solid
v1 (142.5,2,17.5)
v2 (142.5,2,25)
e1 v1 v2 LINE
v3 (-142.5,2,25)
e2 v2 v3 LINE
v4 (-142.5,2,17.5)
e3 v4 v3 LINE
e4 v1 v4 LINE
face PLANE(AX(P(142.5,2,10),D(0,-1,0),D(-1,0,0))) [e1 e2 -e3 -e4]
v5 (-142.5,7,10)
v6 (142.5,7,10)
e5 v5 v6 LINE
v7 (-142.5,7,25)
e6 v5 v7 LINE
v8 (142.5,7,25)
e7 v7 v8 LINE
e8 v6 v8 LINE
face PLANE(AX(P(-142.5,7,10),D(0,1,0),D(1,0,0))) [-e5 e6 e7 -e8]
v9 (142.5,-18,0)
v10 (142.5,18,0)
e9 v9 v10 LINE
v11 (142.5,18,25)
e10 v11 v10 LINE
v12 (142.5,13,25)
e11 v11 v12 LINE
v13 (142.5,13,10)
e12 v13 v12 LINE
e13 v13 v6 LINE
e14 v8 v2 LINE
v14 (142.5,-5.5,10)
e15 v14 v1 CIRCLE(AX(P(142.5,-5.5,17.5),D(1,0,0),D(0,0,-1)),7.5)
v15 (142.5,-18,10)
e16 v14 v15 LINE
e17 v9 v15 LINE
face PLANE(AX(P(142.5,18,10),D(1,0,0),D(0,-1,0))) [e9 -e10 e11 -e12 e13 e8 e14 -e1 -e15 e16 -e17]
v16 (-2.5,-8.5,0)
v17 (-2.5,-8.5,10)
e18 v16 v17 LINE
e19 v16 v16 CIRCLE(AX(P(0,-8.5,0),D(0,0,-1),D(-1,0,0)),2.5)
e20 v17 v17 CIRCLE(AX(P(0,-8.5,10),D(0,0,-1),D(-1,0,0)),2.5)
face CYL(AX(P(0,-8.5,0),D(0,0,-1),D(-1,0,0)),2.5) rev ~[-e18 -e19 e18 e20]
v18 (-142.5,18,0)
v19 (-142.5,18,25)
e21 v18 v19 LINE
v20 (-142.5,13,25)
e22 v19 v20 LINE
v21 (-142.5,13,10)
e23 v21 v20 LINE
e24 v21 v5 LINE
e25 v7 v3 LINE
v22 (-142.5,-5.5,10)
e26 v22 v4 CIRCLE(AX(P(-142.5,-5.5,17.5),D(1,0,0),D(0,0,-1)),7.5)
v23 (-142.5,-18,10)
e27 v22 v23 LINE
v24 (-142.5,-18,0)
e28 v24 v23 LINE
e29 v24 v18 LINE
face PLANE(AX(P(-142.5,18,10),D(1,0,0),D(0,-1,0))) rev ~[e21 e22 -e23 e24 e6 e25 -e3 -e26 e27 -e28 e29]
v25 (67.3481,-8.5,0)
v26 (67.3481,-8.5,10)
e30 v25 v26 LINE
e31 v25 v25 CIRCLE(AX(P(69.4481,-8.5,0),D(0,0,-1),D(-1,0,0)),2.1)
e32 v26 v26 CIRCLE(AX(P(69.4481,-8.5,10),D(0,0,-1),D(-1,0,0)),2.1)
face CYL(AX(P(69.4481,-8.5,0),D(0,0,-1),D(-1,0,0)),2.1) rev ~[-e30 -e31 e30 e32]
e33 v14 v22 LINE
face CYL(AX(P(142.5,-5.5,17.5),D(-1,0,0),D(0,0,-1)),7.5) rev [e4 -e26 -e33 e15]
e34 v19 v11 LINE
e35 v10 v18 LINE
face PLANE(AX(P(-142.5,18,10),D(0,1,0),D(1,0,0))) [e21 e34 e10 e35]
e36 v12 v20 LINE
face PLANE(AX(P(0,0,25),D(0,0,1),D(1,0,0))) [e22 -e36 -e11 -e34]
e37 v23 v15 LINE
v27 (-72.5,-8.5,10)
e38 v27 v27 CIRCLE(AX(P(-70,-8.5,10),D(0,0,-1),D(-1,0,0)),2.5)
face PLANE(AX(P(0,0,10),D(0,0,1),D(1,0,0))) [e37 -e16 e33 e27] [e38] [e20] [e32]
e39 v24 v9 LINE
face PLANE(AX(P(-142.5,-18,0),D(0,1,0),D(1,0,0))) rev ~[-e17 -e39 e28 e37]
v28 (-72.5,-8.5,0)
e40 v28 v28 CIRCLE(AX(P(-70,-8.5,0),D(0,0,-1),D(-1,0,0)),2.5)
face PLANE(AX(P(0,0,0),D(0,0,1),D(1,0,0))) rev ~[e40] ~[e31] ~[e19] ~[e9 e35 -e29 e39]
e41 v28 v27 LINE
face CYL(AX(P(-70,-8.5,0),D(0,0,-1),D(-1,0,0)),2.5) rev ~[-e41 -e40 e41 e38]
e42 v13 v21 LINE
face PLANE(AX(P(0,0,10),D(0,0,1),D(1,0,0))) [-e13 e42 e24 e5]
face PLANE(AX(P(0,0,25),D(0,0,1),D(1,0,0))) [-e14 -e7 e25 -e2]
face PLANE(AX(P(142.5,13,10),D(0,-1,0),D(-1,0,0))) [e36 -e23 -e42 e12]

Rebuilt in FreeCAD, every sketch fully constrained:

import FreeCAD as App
import Part
import Sketcher

V = App.Vector
Q = App.Units.Quantity


def edges_at(feature, points):
    """Names of the edges that pass closest to the given points."""
    edges = feature.Shape.Edges
    near = lambda p: min(range(len(edges)), key=lambda i: edges[i].distToShape(Part.Vertex(*p))[0])
    return sorted({f"Edge{near(p) + 1}" for p in points})

doc = App.newDocument("Part")
body = doc.addObject("PartDesign::Body", "Body")

# Sketch on XY plane
sketch1 = doc.addObject("Sketcher::SketchObject", "Sketch")
body.addObject(sketch1)
sketch1.AttachmentSupport = (doc.XY_Plane, [""])
sketch1.MapMode = "FlatFace"
sketch1.addGeometry(Part.LineSegment(V(142, 18, 0), V(-142, 18, 0)), False)
sketch1.addGeometry(Part.LineSegment(V(-142, 18, 0), V(-142, -18, 0)), False)
sketch1.addGeometry(Part.LineSegment(V(-142, -18, 0), V(142, -18, 0)), False)
sketch1.addGeometry(Part.LineSegment(V(142, -18, 0), V(142, 18, 0)), False)
sketch1.addConstraint(Sketcher.Constraint("Coincident", 0, 2, 1, 1))
sketch1.addConstraint(Sketcher.Constraint("Coincident", 1, 2, 2, 1))
sketch1.addConstraint(Sketcher.Constraint("Coincident", 2, 2, 3, 1))
sketch1.addConstraint(Sketcher.Constraint("Coincident", 3, 2, 0, 1))
sketch1.addConstraint(Sketcher.Constraint("Horizontal", 0))
sketch1.addConstraint(Sketcher.Constraint("Vertical", 1))
sketch1.addConstraint(Sketcher.Constraint("Horizontal", 2))
sketch1.addConstraint(Sketcher.Constraint("Vertical", 3))
sketch1.addConstraint(Sketcher.Constraint("Symmetric", 0, 2, 2, 2, -1, 1))
sketch1.addConstraint(Sketcher.Constraint("DistanceX", 0, 2, 0, 1, Q("285 mm")))
sketch1.addConstraint(Sketcher.Constraint("DistanceY", 1, 2, 1, 1, Q("36 mm")))
pad1 = doc.addObject("PartDesign::Pad", "Pad")
body.addObject(pad1)
pad1.Profile = sketch1
pad1.Length = 10

# Sketch on XY plane
sketch2 = doc.addObject("Sketcher::SketchObject", "Sketch001")
body.addObject(sketch2)
sketch2.AttachmentSupport = (doc.XY_Plane, [""])
sketch2.MapMode = "FlatFace"
sketch2.AttachmentOffset = App.Placement(V(0, 0, 10), App.Rotation())
sketch2.addGeometry(Part.LineSegment(V(142, 18, 0), V(-142, 18, 0)), False)
sketch2.addGeometry(Part.LineSegment(V(-142, 18, 0), V(-142, 13, 0)), False)
sketch2.addGeometry(Part.LineSegment(V(-142, 13, 0), V(142, 13, 0)), False)
sketch2.addGeometry(Part.LineSegment(V(142, 13, 0), V(142, 18, 0)), False)
sketch2.addConstraint(Sketcher.Constraint("Coincident", 0, 2, 1, 1))
sketch2.addConstraint(Sketcher.Constraint("Coincident", 1, 2, 2, 1))
sketch2.addConstraint(Sketcher.Constraint("Coincident", 2, 2, 3, 1))
sketch2.addConstraint(Sketcher.Constraint("Coincident", 3, 2, 0, 1))
sketch2.addConstraint(Sketcher.Constraint("Horizontal", 0))
sketch2.addConstraint(Sketcher.Constraint("Vertical", 1))
sketch2.addConstraint(Sketcher.Constraint("Horizontal", 2))
sketch2.addConstraint(Sketcher.Constraint("Vertical", 3))
sketch2.addConstraint(Sketcher.Constraint("DistanceX", 0, 2, 0, 1, Q("285 mm")))
sketch2.addConstraint(Sketcher.Constraint("DistanceY", 1, 2, 1, 1, Q("5 mm")))
sketch2.addConstraint(Sketcher.Constraint("DistanceY", -1, 1, 0, 2, Q("18 mm")))
sketch2.addConstraint(Sketcher.Constraint("DistanceX", 0, 2, -1, 1, Q("142.5 mm")))
pad2 = doc.addObject("PartDesign::Pad", "Pad001")
body.addObject(pad2)
pad2.Profile = sketch2
pad2.Length = 15

# Sketch on XY plane
sketch3 = doc.addObject("Sketcher::SketchObject", "Sketch002")
body.addObject(sketch3)
sketch3.AttachmentSupport = (doc.XY_Plane, [""])
sketch3.MapMode = "FlatFace"
sketch3.AttachmentOffset = App.Placement(V(0, 0, 10), App.Rotation())
sketch3.addGeometry(Part.LineSegment(V(142, 7, 0), V(-142, 7, 0)), False)
sketch3.addGeometry(Part.LineSegment(V(-142, 7, 0), V(-142, 2, 0)), False)
sketch3.addGeometry(Part.LineSegment(V(-142, 2, 0), V(142, 2, 0)), False)
sketch3.addGeometry(Part.LineSegment(V(142, 2, 0), V(142, 7, 0)), False)
sketch3.addConstraint(Sketcher.Constraint("Coincident", 0, 2, 1, 1))
sketch3.addConstraint(Sketcher.Constraint("Coincident", 1, 2, 2, 1))
sketch3.addConstraint(Sketcher.Constraint("Coincident", 2, 2, 3, 1))
sketch3.addConstraint(Sketcher.Constraint("Coincident", 3, 2, 0, 1))
sketch3.addConstraint(Sketcher.Constraint("Horizontal", 0))
sketch3.addConstraint(Sketcher.Constraint("Vertical", 1))
sketch3.addConstraint(Sketcher.Constraint("Horizontal", 2))
sketch3.addConstraint(Sketcher.Constraint("Vertical", 3))
sketch3.addConstraint(Sketcher.Constraint("DistanceX", 0, 2, 0, 1, Q("285 mm")))
sketch3.addConstraint(Sketcher.Constraint("DistanceY", 1, 2, 1, 1, Q("5 mm")))
sketch3.addConstraint(Sketcher.Constraint("DistanceY", -1, 1, 0, 2, Q("7 mm")))
sketch3.addConstraint(Sketcher.Constraint("DistanceX", 0, 2, -1, 1, Q("142.5 mm")))
pad3 = doc.addObject("PartDesign::Pad", "Pad002")
body.addObject(pad3)
pad3.Profile = sketch3
pad3.Length = 15
doc.recompute()

fillet = doc.addObject("PartDesign::Fillet", "Fillet")
body.addObject(fillet)
fillet.Base = (pad3, edges_at(pad3, [(0, 2, 10)]))
fillet.Radius = 7.5

# Sketch on XY plane
sketch4 = doc.addObject("Sketcher::SketchObject", "Sketch003")
body.addObject(sketch4)
sketch4.AttachmentSupport = (doc.XY_Plane, [""])
sketch4.MapMode = "FlatFace"
sketch4.addGeometry(Part.Circle(V(69.4, -8.5, 0), V(0, 0, 1), 2.1), False)
sketch4.addGeometry(Part.Circle(V(0, -8.5, 0), V(0, 0, 1), 2.5), False)
sketch4.addGeometry(Part.Circle(V(-70, -8.5, 0), V(0, 0, 1), 2.5), False)
sketch4.addConstraint(Sketcher.Constraint("Equal", 1, 2))
sketch4.addConstraint(Sketcher.Constraint("PointOnObject", 1, 3, -2))
sketch4.addConstraint(Sketcher.Constraint("Horizontal", 0, 3, 1, 3))
sketch4.addConstraint(Sketcher.Constraint("Horizontal", 1, 3, 2, 3))
sketch4.addConstraint(Sketcher.Constraint("Diameter", 0, Q("4.2 mm")))
sketch4.addConstraint(Sketcher.Constraint("Diameter", 1, Q("5 mm")))
sketch4.addConstraint(Sketcher.Constraint("DistanceX", 2, 3, -1, 1, Q("70 mm")))
sketch4.addConstraint(Sketcher.Constraint("DistanceY", 0, 3, -1, 1, Q("8.5 mm")))
sketch4.addConstraint(Sketcher.Constraint("DistanceX", -1, 1, 0, 3, Q("69.448 mm")))
pocket1 = doc.addObject("PartDesign::Pocket", "Pocket")
body.addObject(pocket1)
pocket1.Profile = sketch4
pocket1.Type = "ThroughAll"
pocket1.Reversed = True

doc.recompute()
